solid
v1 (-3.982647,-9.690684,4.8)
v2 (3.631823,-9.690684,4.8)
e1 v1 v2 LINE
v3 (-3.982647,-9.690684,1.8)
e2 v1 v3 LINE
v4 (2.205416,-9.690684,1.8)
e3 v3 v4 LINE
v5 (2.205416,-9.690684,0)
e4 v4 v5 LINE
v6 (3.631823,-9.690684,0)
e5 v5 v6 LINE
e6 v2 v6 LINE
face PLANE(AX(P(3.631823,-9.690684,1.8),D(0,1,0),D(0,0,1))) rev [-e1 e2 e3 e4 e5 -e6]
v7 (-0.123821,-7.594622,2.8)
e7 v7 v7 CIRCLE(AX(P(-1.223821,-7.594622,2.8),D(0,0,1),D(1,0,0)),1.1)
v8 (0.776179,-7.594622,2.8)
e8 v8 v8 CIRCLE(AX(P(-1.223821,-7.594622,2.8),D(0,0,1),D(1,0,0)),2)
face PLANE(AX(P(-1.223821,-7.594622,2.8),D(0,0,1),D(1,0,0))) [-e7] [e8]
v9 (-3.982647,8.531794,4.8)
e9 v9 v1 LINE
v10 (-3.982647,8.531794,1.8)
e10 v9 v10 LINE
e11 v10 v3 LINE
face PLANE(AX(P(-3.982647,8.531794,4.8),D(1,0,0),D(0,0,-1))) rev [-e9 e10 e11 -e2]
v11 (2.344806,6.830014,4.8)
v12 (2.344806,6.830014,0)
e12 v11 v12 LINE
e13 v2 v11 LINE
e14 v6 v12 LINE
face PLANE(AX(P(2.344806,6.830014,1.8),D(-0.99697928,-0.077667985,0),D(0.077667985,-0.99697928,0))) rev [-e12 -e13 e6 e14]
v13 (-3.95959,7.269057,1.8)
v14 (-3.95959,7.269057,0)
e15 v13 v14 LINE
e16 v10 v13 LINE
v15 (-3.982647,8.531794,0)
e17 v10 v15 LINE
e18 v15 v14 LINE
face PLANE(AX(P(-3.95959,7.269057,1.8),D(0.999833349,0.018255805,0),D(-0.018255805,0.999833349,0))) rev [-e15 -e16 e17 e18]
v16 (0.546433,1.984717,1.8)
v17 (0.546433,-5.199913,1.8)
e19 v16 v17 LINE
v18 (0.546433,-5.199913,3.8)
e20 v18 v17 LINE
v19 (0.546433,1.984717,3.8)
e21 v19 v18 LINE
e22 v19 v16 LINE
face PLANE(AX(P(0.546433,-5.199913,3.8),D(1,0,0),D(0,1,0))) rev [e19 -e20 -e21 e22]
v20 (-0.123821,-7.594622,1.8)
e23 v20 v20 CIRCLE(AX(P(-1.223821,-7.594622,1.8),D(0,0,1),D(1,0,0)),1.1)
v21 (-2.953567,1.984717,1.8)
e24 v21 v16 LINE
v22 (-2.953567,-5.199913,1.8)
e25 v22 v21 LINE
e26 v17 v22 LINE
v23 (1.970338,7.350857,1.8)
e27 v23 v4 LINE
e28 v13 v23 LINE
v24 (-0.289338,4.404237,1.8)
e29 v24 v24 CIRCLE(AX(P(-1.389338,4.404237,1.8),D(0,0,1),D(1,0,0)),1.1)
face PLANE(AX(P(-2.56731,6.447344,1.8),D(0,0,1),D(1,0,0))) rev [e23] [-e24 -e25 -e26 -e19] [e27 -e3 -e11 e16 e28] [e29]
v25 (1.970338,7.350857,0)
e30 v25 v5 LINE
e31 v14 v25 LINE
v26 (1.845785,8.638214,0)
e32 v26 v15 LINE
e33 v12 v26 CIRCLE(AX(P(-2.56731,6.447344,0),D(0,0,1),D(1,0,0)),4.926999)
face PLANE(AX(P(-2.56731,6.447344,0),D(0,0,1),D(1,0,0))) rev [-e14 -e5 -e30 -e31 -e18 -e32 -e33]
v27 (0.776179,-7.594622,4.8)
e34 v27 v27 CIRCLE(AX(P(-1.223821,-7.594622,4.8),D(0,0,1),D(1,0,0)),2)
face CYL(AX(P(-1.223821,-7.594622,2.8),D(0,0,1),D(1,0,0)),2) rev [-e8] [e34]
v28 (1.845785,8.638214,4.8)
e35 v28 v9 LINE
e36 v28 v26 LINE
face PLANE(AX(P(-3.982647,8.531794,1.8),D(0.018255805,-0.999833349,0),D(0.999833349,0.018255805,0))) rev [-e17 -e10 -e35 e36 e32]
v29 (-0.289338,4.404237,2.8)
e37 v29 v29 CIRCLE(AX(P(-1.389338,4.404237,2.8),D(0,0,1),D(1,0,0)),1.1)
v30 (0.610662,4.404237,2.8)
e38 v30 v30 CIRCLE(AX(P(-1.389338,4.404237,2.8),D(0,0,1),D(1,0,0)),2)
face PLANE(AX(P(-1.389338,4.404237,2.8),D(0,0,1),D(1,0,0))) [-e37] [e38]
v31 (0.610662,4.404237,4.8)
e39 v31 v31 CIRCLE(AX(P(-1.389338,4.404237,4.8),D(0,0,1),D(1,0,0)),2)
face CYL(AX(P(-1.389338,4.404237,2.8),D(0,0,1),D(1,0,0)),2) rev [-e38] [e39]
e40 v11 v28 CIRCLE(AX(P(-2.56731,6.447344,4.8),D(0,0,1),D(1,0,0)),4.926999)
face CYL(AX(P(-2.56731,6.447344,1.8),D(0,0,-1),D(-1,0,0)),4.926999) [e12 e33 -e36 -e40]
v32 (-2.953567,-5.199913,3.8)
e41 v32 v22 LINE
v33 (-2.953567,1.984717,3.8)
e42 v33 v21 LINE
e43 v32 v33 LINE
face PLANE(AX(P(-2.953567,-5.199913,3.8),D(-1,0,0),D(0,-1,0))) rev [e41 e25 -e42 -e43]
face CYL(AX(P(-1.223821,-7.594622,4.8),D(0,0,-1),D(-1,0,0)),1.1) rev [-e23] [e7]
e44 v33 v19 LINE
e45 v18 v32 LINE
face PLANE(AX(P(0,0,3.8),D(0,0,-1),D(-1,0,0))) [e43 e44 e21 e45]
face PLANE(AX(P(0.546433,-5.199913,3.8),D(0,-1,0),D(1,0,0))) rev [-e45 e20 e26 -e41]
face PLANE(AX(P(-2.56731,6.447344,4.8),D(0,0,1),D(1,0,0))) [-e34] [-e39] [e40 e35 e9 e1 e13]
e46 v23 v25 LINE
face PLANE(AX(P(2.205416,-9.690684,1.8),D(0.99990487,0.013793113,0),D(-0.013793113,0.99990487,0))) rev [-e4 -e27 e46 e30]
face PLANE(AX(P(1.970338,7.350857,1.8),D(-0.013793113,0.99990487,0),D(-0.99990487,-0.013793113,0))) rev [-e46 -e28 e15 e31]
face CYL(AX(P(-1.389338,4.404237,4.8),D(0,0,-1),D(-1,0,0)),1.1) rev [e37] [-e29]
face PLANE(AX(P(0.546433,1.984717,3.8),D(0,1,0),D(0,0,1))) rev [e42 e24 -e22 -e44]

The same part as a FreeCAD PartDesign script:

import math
import FreeCAD as App
import Part
import Sketcher

V = App.Vector

doc = App.newDocument("Part")
body = doc.addObject("PartDesign::Body", "Body")

# Sketch on XY plane
sketch1 = body.newObject("Sketcher::SketchObject", "Sketch")
sketch1.AttachmentSupport = (doc.getObject("XY_Plane"), [""])
sketch1.MapMode = "FlatFace"
sketch1.addGeometry(Part.LineSegment(V(3.63, -9.69, 0), V(2.34, 6.83, 0)), False)
sketch1.addGeometry(Part.ArcOfCircle(Part.Circle(V(-2.57, 6.45, 0), V(0, 0, 1), 4.93), math.radians(4), math.radians(26)), False)
sketch1.addGeometry(Part.LineSegment(V(1.85, 8.64, 0), V(-3.98, 8.53, 0)), False)
sketch1.addGeometry(Part.LineSegment(V(-3.98, 8.53, 0), V(-3.96, 7.27, 0)), False)
sketch1.addGeometry(Part.LineSegment(V(-3.96, 7.27, 0), V(1.97, 7.35, 0)), False)
sketch1.addGeometry(Part.LineSegment(V(1.97, 7.35, 0), V(1.98, 6.95, 0)), False)
sketch1.addGeometry(Part.LineSegment(V(1.98, 6.95, 0), V(2.21, -9.69, 0)), False)
sketch1.addGeometry(Part.LineSegment(V(2.21, -9.69, 0), V(3.63, -9.69, 0)), False)
sketch1.addConstraint(Sketcher.Constraint("Tangent", 0, 2, 1, 1))
sketch1.addConstraint(Sketcher.Constraint("Coincident", 1, 2, 2, 1))
sketch1.addConstraint(Sketcher.Constraint("Coincident", 2, 2, 3, 1))
sketch1.addConstraint(Sketcher.Constraint("Coincident", 3, 2, 4, 1))
sketch1.addConstraint(Sketcher.Constraint("Coincident", 4, 2, 5, 1))
sketch1.addConstraint(Sketcher.Constraint("Coincident", 5, 2, 6, 1))
sketch1.addConstraint(Sketcher.Constraint("Coincident", 6, 2, 7, 1))
sketch1.addConstraint(Sketcher.Constraint("Coincident", 7, 2, 0, 1))
sketch1.addConstraint(Sketcher.Constraint("Horizontal", 7))
sketch1.addConstraint(Sketcher.Constraint("Perpendicular", 2, 3))
sketch1.addConstraint(Sketcher.Constraint("Perpendicular", 4, 5))
sketch1.addConstraint(Sketcher.Constraint("Parallel", 5, 6))
sketch1.addConstraint(Sketcher.Constraint("Radius", 1, 4.926999))
sketch1.addConstraint(Sketcher.Constraint("DistanceX", -1, 1, 5, 2, 1.975902))
sketch1.addConstraint(Sketcher.Constraint("DistanceY", 0, 2, 1, 2, 1.8082))
sketch1.addConstraint(Sketcher.Constraint("DistanceY", 3, 2, 4, 2, 0.0818))
sketch1.addConstraint(Sketcher.Constraint("DistanceY", 0, 2, 5, 2, 0.1175))
sketch1.addConstraint(Sketcher.Constraint("DistanceY", 6, 2, 0, 2, 16.520698))
sketch1.addConstraint(Sketcher.Constraint("Distance", 5, 0.403382))
sketch1.addConstraint(Sketcher.Constraint("DistanceX", 7, 1, 7, 2, 1.426407))
sketch1.addConstraint(Sketcher.Constraint("DistanceX", 1, 3, -1, 1, 2.56731))
sketch1.addConstraint(Sketcher.Constraint("DistanceX", 3, 2, -1, 1, 3.95959))
sketch1.addConstraint(Sketcher.Constraint("DistanceY", 1, 3, 2, 2, 2.084449))
sketch1.addConstraint(Sketcher.Constraint("DistanceY", -1, 1, 1, 3, 6.447344))
pad1 = body.newObject("PartDesign::Pad", "Pad")
pad1.Profile = sketch1
pad1.Length = 1.8

# Sketch on XY plane
sketch2 = body.newObject("Sketcher::SketchObject", "Sketch001")
sketch2.AttachmentSupport = (doc.getObject("XY_Plane"), [""])
sketch2.MapMode = "FlatFace"
sketch2.AttachmentOffset = App.Placement(V(0, 0, 1.8), App.Rotation())
sketch2.addGeometry(Part.LineSegment(V(-4, 8.5, 0), V(-4, -9.7, 0)), False)
sketch2.addGeometry(Part.LineSegment(V(-4, -9.7, 0), V(3.6, -9.7, 0)), False)
sketch2.addGeometry(Part.LineSegment(V(3.6, -9.7, 0), V(2.3, 6.8, 0)), False)
sketch2.addGeometry(Part.ArcOfCircle(Part.Circle(V(-2.6, 6.4, 0), V(0, 0, 1), 4.9), math.radians(4), math.radians(26)), False)
sketch2.addGeometry(Part.LineSegment(V(1.8, 8.6, 0), V(-4, 8.5, 0)), False)
sketch2.addGeometry(Part.Circle(V(-1.2, -7.6, 0), V(0, 0, 1), 1.1), False)
sketch2.addGeometry(Part.Circle(V(-1.4, 4.4, 0), V(0, 0, 1), 1.1), False)
sketch2.addConstraint(Sketcher.Constraint("Coincident", 0, 2, 1, 1))
sketch2.addConstraint(Sketcher.Constraint("Coincident", 1, 2, 2, 1))
sketch2.addConstraint(Sketcher.Constraint("Tangent", 2, 2, 3, 1))
sketch2.addConstraint(Sketcher.Constraint("Coincident", 3, 2, 4, 1))
sketch2.addConstraint(Sketcher.Constraint("Coincident", 4, 2, 0, 1))
sketch2.addConstraint(Sketcher.Constraint("Vertical", 0))
sketch2.addConstraint(Sketcher.Constraint("Horizontal", 1))
sketch2.addConstraint(Sketcher.Constraint("Equal", 5, 6))
sketch2.addConstraint(Sketcher.Constraint("Diameter", 5, 2.2))
sketch2.addConstraint(Sketcher.Constraint("Radius", 3, 4.926999))
sketch2.addConstraint(Sketcher.Constraint("DistanceX", 1, 1, 1, 2, 7.61447))
sketch2.addConstraint(Sketcher.Constraint("DistanceY", 1, 2, 2, 2, 16.520698))
sketch2.addConstraint(Sketcher.Constraint("DistanceY", 2, 2, 3, 2, 1.8082))
sketch2.addConstraint(Sketcher.Constraint("DistanceY", 0, 2, 0, 1, 18.222478))
sketch2.addConstraint(Sketcher.Constraint("DistanceX", 3, 3, -1, 1, 2.56731))
sketch2.addConstraint(Sketcher.Constraint("DistanceX", 5, 3, -1, 1, 1.223821))
sketch2.addConstraint(Sketcher.Constraint("DistanceY", 5, 3, -1, 1, 7.594622))
sketch2.addConstraint(Sketcher.Constraint("DistanceX", 6, 3, -1, 1, 1.389338))
sketch2.addConstraint(Sketcher.Constraint("DistanceY", 5, 3, 6, 3, 11.998858))
sketch2.addConstraint(Sketcher.Constraint("DistanceX", 0, 2, 6, 3, 2.593308))
sketch2.addConstraint(Sketcher.Constraint("DistanceY", 0, 2, 6, 3, 14.094921))
pad2 = body.newObject("PartDesign::Pad", "Pad001")
pad2.Profile = sketch2
pad2.Length = 3

# Sketch on XY plane
sketch3 = body.newObject("Sketcher::SketchObject", "Sketch002")
sketch3.AttachmentSupport = (doc.getObject("XY_Plane"), [""])
sketch3.MapMode = "FlatFace"
sketch3.AttachmentOffset = App.Placement(V(0, 0, 1.8), App.Rotation())
sketch3.addGeometry(Part.LineSegment(V(-3, -5.2, 0), V(-3, 2, 0)), False)
sketch3.addGeometry(Part.LineSegment(V(-3, 2, 0), V(0.5, 2, 0)), False)
sketch3.addGeometry(Part.LineSegment(V(0.5, 2, 0), V(0.5, -5.2, 0)), False)
sketch3.addGeometry(Part.LineSegment(V(0.5, -5.2, 0), V(-3, -5.2, 0)), False)
sketch3.addConstraint(Sketcher.Constraint("Coincident", 0, 2, 1, 1))
sketch3.addConstraint(Sketcher.Constraint("Coincident", 1, 2, 2, 1))
sketch3.addConstraint(Sketcher.Constraint("Coincident", 2, 2, 3, 1))
sketch3.addConstraint(Sketcher.Constraint("Coincident", 3, 2, 0, 1))
sketch3.addConstraint(Sketcher.Constraint("Vertical", 0))
sketch3.addConstraint(Sketcher.Constraint("Horizontal", 1))
sketch3.addConstraint(Sketcher.Constraint("Vertical", 2))
sketch3.addConstraint(Sketcher.Constraint("Horizontal", 3))
sketch3.addConstraint(Sketcher.Constraint("DistanceX", 1, 1, 1, 2, 3.5))
sketch3.addConstraint(Sketcher.Constraint("DistanceY", 0, 1, 0, 2, 7.18463))
sketch3.addConstraint(Sketcher.Constraint("DistanceX", 0, 2, -1, 1, 2.953567))
sketch3.addConstraint(Sketcher.Constraint("DistanceY", -1, 1, 0, 2, 1.984717))
pocket1 = body.newObject("PartDesign::Pocket", "Pocket")
pocket1.Profile = sketch3
pocket1.Length = 2
pocket1.Reversed = True

# Sketch on XY plane
sketch4 = body.newObject("Sketcher::SketchObject", "Sketch003")
sketch4.AttachmentSupport = (doc.getObject("XY_Plane"), [""])
sketch4.MapMode = "FlatFace"
sketch4.AttachmentOffset = App.Placement(V(0, 0, 4.8), App.Rotation())
sketch4.addGeometry(Part.Circle(V(-1.4, 4.4, 0), V(0, 0, 1), 2), False)
sketch4.addGeometry(Part.Circle(V(-1.2, -7.6, 0), V(0, 0, 1), 2), False)
sketch4.addConstraint(Sketcher.Constraint("Equal", 0, 1))
sketch4.addConstraint(Sketcher.Constraint("Diameter", 0, 4.0))
sketch4.addConstraint(Sketcher.Constraint("DistanceX", 0, 3, -1, 1, 1.389338))
sketch4.addConstraint(Sketcher.Constraint("DistanceX", 1, 3, -1, 1, 1.223821))
sketch4.addConstraint(Sketcher.Constraint("DistanceY", 1, 3, -1, 1, 7.594622))
sketch4.addConstraint(Sketcher.Constraint("DistanceY", 1, 3, 0, 3, 11.998858))
pocket2 = body.newObject("PartDesign::Pocket", "Pocket001")
pocket2.Profile = sketch4
pocket2.Length = 2

doc.recompute()
